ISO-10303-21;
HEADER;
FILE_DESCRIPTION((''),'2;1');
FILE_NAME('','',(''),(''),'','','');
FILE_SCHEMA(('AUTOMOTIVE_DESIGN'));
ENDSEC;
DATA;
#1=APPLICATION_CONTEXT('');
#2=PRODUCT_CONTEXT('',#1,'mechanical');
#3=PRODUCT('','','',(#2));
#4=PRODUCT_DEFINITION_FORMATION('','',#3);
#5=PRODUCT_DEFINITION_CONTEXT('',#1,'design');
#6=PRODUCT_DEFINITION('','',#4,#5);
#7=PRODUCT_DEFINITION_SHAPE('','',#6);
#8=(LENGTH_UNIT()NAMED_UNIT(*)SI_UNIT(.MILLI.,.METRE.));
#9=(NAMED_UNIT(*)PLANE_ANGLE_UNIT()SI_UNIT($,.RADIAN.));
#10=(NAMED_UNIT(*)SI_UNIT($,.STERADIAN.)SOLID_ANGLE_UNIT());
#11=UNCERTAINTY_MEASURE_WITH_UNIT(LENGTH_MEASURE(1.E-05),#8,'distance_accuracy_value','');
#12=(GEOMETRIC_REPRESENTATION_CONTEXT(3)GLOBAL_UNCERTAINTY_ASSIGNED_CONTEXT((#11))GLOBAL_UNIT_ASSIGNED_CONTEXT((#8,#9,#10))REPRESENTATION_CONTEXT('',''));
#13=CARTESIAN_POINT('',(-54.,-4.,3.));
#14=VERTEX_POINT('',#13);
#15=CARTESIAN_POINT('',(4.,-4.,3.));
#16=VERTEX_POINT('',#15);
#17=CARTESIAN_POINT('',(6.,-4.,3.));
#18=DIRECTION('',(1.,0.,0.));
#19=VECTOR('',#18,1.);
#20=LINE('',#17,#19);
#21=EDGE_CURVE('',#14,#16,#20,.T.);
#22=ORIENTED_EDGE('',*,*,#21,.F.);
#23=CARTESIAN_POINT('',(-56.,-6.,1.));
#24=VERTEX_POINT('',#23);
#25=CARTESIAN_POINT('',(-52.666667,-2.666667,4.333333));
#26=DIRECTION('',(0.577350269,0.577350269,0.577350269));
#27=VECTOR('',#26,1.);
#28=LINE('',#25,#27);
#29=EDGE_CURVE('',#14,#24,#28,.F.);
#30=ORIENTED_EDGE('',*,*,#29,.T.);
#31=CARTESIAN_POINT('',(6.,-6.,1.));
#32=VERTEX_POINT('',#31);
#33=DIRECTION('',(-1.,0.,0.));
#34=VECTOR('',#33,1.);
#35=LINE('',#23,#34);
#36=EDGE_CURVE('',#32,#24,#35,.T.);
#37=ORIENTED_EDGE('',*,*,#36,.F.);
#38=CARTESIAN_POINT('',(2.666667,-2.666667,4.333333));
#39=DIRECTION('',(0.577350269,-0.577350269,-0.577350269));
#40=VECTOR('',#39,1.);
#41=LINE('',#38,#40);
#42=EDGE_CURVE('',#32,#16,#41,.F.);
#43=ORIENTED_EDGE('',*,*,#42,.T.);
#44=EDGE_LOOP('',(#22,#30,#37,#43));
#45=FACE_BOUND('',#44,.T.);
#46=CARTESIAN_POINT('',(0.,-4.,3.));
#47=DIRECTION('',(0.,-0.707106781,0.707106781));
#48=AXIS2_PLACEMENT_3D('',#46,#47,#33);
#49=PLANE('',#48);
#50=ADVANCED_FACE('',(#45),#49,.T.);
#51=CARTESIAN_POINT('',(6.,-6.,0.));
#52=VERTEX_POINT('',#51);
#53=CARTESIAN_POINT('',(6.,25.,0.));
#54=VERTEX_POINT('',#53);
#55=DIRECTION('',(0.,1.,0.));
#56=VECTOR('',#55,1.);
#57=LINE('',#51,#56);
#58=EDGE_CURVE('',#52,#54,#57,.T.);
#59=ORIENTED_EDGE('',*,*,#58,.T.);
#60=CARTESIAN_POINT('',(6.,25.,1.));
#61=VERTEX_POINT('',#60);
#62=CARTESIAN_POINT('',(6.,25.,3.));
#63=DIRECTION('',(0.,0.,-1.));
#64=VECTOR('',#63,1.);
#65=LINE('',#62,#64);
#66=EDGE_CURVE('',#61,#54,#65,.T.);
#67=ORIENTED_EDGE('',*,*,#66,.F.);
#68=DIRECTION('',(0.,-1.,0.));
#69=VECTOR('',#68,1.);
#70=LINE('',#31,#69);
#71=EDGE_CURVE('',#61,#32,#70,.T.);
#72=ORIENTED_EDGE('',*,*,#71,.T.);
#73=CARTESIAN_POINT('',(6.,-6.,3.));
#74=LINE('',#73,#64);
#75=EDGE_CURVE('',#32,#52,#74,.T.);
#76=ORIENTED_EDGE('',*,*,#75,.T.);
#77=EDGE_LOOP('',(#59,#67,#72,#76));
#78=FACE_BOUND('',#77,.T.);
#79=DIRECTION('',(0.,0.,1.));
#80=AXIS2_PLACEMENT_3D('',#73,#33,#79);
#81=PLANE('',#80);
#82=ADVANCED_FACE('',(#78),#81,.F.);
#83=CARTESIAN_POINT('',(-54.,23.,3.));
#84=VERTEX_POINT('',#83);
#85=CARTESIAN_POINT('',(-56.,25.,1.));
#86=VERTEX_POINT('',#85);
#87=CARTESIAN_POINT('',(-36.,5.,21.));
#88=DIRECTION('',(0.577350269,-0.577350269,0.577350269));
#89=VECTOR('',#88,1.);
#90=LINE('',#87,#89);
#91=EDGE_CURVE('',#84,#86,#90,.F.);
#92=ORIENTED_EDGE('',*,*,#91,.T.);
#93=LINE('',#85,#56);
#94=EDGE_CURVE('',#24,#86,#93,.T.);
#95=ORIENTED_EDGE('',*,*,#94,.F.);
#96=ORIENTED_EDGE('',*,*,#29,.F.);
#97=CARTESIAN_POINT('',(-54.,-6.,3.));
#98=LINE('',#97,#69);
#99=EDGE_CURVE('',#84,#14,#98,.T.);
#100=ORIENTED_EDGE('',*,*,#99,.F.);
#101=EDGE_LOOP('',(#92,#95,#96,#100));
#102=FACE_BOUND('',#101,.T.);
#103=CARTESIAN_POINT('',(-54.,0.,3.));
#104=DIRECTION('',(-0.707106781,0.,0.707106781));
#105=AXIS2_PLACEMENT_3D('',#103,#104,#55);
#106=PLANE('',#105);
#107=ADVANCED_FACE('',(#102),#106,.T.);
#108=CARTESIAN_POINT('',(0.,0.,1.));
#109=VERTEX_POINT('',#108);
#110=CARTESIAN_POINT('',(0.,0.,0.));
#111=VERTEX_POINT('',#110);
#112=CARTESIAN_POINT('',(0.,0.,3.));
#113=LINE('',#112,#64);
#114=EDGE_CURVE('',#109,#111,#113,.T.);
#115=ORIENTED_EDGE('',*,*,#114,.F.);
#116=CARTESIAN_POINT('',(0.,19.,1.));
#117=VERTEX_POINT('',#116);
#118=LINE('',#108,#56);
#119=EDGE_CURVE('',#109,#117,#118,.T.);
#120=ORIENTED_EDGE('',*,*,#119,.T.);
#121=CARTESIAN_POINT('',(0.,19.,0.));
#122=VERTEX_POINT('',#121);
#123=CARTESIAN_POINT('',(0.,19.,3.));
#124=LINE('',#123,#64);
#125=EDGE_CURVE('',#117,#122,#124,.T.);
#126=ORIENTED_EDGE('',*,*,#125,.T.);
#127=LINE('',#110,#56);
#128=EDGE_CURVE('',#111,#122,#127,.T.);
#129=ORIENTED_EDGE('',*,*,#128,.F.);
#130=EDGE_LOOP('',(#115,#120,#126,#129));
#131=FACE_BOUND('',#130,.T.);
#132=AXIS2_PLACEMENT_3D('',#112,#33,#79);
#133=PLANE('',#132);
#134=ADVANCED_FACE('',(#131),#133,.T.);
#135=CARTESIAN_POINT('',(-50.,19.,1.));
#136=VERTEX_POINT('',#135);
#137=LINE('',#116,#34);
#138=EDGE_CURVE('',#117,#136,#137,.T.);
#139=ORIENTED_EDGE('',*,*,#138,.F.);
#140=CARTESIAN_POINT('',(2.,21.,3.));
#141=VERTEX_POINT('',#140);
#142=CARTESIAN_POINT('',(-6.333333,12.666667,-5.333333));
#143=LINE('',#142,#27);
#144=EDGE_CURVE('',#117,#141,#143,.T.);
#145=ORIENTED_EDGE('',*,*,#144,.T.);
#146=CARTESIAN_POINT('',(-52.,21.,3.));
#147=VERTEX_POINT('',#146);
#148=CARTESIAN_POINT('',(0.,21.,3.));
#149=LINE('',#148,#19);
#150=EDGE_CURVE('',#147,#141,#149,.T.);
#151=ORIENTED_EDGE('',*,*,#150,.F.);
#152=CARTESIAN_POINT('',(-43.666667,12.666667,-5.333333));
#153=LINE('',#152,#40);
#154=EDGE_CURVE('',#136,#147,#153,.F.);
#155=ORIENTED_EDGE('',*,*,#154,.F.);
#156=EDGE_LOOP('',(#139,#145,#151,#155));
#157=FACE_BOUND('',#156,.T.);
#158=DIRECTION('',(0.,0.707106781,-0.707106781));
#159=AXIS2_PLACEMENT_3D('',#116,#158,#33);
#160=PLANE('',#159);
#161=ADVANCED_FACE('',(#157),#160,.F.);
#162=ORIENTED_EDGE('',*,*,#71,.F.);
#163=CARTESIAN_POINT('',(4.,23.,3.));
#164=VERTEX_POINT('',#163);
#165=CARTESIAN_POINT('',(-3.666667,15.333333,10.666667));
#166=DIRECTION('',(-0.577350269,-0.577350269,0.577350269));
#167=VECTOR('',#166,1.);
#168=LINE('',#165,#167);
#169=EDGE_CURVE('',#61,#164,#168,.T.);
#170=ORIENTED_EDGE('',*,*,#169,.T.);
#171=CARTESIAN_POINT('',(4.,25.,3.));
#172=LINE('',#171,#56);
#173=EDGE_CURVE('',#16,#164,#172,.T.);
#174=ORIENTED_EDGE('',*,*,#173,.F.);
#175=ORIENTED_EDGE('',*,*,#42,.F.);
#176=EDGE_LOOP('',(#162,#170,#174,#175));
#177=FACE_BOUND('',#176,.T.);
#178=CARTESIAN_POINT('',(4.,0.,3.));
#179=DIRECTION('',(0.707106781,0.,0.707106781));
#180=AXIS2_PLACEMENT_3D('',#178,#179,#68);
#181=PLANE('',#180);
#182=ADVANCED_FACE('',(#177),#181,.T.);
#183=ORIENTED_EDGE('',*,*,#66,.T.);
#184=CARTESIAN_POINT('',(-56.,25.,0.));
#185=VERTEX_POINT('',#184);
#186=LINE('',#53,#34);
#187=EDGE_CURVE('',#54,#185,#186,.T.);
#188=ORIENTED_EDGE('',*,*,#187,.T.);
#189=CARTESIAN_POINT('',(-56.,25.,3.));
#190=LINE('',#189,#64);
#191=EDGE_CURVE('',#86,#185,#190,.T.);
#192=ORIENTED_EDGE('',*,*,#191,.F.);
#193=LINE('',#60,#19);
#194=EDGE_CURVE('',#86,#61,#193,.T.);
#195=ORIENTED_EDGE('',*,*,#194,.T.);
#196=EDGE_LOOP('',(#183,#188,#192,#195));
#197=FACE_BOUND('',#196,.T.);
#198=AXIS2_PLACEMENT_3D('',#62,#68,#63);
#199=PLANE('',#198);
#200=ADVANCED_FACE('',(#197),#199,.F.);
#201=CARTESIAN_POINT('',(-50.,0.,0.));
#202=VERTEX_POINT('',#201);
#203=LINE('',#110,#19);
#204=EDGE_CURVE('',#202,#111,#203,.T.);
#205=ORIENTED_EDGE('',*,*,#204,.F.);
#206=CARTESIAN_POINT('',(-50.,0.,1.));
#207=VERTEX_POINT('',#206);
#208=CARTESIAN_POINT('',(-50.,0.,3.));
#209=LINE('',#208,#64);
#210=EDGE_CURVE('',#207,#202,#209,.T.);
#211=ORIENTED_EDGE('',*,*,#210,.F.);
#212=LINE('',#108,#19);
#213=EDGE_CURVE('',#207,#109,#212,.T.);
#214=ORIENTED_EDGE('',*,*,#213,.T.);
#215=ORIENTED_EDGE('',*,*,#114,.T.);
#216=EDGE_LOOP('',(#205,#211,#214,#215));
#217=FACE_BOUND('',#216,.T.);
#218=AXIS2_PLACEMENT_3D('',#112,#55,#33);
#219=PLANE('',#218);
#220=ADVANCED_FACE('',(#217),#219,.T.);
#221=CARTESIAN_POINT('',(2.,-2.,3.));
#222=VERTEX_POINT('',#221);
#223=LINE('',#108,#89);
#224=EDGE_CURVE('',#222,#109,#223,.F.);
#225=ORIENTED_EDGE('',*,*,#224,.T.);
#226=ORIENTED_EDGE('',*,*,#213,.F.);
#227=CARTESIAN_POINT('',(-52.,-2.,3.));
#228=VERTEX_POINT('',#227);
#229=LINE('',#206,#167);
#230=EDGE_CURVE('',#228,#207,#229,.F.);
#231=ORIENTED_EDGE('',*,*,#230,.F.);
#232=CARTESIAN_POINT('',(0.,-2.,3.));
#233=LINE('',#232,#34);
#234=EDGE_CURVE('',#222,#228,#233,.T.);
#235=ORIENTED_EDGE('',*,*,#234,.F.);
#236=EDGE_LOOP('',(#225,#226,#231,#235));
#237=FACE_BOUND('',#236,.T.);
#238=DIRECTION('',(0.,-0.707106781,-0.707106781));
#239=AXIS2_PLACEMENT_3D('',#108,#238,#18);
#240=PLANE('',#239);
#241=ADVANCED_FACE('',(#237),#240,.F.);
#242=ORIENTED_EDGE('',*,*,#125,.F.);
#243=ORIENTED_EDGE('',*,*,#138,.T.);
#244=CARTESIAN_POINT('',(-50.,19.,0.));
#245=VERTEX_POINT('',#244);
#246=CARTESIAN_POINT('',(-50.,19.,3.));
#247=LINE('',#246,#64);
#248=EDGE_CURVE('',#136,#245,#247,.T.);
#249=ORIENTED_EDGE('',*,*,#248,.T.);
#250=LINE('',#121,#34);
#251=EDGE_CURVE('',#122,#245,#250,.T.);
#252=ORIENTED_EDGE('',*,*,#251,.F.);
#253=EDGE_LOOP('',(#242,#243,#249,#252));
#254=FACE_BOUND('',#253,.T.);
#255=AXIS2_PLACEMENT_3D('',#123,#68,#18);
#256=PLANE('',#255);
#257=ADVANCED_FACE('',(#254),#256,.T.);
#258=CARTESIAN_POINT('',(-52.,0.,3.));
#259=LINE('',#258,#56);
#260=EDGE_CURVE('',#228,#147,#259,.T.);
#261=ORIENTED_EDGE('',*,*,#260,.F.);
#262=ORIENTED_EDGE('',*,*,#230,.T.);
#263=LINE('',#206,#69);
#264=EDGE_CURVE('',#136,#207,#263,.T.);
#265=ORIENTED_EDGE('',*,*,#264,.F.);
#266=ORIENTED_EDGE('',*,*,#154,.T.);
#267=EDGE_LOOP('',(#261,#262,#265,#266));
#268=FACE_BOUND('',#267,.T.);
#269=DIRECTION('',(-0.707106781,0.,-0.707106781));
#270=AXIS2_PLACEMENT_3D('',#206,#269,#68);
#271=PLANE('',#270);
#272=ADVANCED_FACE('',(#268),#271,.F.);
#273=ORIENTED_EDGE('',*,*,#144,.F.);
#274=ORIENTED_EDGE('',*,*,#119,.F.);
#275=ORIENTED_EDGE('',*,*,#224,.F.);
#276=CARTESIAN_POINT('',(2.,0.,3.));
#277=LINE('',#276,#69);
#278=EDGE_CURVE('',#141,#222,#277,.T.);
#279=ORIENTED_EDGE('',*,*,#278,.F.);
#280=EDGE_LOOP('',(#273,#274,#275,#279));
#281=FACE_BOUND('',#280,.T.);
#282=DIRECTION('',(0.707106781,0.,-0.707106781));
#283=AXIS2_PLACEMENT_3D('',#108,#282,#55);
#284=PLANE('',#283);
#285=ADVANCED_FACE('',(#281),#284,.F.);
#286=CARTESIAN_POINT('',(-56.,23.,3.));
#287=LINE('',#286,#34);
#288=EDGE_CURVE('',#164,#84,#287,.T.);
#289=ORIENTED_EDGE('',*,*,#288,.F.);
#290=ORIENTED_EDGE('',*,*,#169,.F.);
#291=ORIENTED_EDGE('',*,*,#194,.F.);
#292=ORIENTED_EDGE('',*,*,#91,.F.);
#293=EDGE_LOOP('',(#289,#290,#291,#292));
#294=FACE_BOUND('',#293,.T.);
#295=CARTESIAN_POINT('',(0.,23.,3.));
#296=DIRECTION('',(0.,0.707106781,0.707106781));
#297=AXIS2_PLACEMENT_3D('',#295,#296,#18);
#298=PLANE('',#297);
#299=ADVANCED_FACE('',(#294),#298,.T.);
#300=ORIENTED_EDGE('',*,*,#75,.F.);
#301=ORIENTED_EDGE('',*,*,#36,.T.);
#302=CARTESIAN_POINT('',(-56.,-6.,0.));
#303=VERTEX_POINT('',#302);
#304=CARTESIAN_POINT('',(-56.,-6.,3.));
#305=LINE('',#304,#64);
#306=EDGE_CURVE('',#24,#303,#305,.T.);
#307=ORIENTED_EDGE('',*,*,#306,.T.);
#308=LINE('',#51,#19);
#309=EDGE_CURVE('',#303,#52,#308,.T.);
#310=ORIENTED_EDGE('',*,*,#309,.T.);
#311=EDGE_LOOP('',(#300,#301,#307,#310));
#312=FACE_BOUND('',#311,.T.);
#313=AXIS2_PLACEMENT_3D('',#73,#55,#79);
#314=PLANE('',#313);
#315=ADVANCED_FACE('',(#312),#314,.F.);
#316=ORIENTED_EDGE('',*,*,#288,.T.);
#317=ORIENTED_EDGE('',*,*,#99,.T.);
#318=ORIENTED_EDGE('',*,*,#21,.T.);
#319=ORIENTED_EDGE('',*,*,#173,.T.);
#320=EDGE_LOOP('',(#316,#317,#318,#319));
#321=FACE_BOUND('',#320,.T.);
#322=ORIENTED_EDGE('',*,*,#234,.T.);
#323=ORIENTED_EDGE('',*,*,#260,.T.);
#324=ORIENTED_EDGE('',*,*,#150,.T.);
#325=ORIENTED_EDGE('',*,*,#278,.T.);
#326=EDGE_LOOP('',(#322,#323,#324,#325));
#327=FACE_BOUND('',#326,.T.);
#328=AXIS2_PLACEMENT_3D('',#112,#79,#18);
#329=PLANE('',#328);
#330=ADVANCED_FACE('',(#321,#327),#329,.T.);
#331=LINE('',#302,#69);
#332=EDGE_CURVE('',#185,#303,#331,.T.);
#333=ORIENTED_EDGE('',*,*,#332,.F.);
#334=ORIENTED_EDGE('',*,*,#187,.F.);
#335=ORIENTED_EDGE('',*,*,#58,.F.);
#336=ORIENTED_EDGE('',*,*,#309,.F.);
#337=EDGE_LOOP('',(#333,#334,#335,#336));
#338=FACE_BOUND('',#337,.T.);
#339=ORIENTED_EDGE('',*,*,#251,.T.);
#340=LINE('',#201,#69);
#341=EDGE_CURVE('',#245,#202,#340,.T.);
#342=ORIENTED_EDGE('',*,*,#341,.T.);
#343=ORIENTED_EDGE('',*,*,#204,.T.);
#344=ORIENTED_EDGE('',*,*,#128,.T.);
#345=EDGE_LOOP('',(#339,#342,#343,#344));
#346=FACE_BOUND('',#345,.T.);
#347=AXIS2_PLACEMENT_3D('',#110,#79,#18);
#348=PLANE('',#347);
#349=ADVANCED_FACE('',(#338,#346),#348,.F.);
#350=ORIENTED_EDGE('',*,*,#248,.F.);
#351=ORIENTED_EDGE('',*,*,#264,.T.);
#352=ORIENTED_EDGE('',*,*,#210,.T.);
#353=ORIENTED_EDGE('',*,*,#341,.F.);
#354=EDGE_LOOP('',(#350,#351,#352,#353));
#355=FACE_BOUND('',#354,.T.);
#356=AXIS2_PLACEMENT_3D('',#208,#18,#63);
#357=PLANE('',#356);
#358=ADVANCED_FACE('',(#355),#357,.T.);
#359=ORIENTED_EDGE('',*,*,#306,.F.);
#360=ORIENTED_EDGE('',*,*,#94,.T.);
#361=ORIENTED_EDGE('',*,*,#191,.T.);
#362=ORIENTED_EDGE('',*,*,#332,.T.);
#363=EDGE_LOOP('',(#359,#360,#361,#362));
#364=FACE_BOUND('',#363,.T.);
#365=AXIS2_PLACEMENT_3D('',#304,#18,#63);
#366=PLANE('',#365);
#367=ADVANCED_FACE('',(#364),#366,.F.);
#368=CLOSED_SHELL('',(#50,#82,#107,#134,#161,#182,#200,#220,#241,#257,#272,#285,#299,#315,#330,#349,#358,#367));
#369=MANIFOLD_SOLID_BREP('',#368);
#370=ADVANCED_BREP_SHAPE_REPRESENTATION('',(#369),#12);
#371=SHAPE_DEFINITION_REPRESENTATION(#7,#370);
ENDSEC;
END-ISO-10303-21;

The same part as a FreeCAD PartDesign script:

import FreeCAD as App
import Part
import Sketcher
Q = App.Units.Quantity


def edges_at(feature, points):
    """Names of the edges that pass closest to the given points."""
    edges = feature.Shape.Edges
    near = lambda p: min(range(len(edges)), key=lambda i: edges[i].distToShape(Part.Vertex(*p))[0])
    return sorted({f"Edge{near(p) + 1}" for p in points})

doc = App.newDocument("Part")
body = doc.addObject("PartDesign::Body", "Body")

sketch1 = body.newObject("Sketcher::SketchObject", "Sketch")
sketch1.AttachmentSupport = (doc.getObject("XY_Plane"), [""])
sketch1.MapMode = "FlatFace"
sketch1.addGeometry([
    Part.LineSegment(App.Vector(-56, 25, 0), App.Vector(-56, -6, 0)),
    Part.LineSegment(App.Vector(-56, -6, 0), App.Vector(6, -6, 0)),
    Part.LineSegment(App.Vector(6, -6, 0), App.Vector(6, 25, 0)),
    Part.LineSegment(App.Vector(6, 25, 0), App.Vector(-56, 25, 0)),
    Part.LineSegment(App.Vector(0, 0, 0), App.Vector(-50, 0, 0)),
    Part.LineSegment(App.Vector(-50, 0, 0), App.Vector(-50, 19, 0)),
    Part.LineSegment(App.Vector(-50, 19, 0), App.Vector(0, 19, 0)),
    Part.LineSegment(App.Vector(0, 19, 0), App.Vector(0, 0, 0)),
], False)
sketch1.addConstraint([
    Sketcher.Constraint("Coincident", 0, 2, 1, 1),
    Sketcher.Constraint("Coincident", 1, 2, 2, 1),
    Sketcher.Constraint("Coincident", 2, 2, 3, 1),
    Sketcher.Constraint("Coincident", 3, 2, 0, 1),
    Sketcher.Constraint("Coincident", 4, 2, 5, 1),
    Sketcher.Constraint("Coincident", 5, 2, 6, 1),
    Sketcher.Constraint("Coincident", 6, 2, 7, 1),
    Sketcher.Constraint("Coincident", 7, 2, 4, 1),
    Sketcher.Constraint("Vertical", 0),
    Sketcher.Constraint("Horizontal", 1),
    Sketcher.Constraint("Vertical", 2),
    Sketcher.Constraint("Horizontal", 3),
    Sketcher.Constraint("Horizontal", 4),
    Sketcher.Constraint("Vertical", 5),
    Sketcher.Constraint("Horizontal", 6),
    Sketcher.Constraint("Vertical", 7),
    Sketcher.Constraint("Coincident", 7, 2, -1, 1),
    Sketcher.Constraint("DistanceX", 1, 1, 1, 2, Q("62 mm")),
    Sketcher.Constraint("DistanceX", 4, 2, 4, 1, Q("50 mm")),
    Sketcher.Constraint("DistanceY", 0, 2, 0, 1, Q("31 mm")),
    Sketcher.Constraint("DistanceY", 5, 1, 5, 2, Q("19 mm")),
    Sketcher.Constraint("DistanceX", 0, 2, -1, 1, Q("56 mm")),
    Sketcher.Constraint("DistanceY", 0, 2, -1, 1, Q("6 mm")),
])
pad1 = body.newObject("PartDesign::Pad", "Pad")
pad1.Profile = sketch1
pad1.Length = 3
doc.recompute()

chamfer = body.newObject("PartDesign::Chamfer", "Chamfer")
chamfer.Base = (pad1, edges_at(pad1, [
    (-56, 9.5, 3),
    (-25, -6, 3),
    (0, 9.5, 3),
    (-25, 19, 3),
    (-50, 9.5, 3),
    (-25, 0, 3),
    (6, 9.5, 3),
    (-25, 25, 3),
]))
chamfer.Size = 2

doc.recompute()
